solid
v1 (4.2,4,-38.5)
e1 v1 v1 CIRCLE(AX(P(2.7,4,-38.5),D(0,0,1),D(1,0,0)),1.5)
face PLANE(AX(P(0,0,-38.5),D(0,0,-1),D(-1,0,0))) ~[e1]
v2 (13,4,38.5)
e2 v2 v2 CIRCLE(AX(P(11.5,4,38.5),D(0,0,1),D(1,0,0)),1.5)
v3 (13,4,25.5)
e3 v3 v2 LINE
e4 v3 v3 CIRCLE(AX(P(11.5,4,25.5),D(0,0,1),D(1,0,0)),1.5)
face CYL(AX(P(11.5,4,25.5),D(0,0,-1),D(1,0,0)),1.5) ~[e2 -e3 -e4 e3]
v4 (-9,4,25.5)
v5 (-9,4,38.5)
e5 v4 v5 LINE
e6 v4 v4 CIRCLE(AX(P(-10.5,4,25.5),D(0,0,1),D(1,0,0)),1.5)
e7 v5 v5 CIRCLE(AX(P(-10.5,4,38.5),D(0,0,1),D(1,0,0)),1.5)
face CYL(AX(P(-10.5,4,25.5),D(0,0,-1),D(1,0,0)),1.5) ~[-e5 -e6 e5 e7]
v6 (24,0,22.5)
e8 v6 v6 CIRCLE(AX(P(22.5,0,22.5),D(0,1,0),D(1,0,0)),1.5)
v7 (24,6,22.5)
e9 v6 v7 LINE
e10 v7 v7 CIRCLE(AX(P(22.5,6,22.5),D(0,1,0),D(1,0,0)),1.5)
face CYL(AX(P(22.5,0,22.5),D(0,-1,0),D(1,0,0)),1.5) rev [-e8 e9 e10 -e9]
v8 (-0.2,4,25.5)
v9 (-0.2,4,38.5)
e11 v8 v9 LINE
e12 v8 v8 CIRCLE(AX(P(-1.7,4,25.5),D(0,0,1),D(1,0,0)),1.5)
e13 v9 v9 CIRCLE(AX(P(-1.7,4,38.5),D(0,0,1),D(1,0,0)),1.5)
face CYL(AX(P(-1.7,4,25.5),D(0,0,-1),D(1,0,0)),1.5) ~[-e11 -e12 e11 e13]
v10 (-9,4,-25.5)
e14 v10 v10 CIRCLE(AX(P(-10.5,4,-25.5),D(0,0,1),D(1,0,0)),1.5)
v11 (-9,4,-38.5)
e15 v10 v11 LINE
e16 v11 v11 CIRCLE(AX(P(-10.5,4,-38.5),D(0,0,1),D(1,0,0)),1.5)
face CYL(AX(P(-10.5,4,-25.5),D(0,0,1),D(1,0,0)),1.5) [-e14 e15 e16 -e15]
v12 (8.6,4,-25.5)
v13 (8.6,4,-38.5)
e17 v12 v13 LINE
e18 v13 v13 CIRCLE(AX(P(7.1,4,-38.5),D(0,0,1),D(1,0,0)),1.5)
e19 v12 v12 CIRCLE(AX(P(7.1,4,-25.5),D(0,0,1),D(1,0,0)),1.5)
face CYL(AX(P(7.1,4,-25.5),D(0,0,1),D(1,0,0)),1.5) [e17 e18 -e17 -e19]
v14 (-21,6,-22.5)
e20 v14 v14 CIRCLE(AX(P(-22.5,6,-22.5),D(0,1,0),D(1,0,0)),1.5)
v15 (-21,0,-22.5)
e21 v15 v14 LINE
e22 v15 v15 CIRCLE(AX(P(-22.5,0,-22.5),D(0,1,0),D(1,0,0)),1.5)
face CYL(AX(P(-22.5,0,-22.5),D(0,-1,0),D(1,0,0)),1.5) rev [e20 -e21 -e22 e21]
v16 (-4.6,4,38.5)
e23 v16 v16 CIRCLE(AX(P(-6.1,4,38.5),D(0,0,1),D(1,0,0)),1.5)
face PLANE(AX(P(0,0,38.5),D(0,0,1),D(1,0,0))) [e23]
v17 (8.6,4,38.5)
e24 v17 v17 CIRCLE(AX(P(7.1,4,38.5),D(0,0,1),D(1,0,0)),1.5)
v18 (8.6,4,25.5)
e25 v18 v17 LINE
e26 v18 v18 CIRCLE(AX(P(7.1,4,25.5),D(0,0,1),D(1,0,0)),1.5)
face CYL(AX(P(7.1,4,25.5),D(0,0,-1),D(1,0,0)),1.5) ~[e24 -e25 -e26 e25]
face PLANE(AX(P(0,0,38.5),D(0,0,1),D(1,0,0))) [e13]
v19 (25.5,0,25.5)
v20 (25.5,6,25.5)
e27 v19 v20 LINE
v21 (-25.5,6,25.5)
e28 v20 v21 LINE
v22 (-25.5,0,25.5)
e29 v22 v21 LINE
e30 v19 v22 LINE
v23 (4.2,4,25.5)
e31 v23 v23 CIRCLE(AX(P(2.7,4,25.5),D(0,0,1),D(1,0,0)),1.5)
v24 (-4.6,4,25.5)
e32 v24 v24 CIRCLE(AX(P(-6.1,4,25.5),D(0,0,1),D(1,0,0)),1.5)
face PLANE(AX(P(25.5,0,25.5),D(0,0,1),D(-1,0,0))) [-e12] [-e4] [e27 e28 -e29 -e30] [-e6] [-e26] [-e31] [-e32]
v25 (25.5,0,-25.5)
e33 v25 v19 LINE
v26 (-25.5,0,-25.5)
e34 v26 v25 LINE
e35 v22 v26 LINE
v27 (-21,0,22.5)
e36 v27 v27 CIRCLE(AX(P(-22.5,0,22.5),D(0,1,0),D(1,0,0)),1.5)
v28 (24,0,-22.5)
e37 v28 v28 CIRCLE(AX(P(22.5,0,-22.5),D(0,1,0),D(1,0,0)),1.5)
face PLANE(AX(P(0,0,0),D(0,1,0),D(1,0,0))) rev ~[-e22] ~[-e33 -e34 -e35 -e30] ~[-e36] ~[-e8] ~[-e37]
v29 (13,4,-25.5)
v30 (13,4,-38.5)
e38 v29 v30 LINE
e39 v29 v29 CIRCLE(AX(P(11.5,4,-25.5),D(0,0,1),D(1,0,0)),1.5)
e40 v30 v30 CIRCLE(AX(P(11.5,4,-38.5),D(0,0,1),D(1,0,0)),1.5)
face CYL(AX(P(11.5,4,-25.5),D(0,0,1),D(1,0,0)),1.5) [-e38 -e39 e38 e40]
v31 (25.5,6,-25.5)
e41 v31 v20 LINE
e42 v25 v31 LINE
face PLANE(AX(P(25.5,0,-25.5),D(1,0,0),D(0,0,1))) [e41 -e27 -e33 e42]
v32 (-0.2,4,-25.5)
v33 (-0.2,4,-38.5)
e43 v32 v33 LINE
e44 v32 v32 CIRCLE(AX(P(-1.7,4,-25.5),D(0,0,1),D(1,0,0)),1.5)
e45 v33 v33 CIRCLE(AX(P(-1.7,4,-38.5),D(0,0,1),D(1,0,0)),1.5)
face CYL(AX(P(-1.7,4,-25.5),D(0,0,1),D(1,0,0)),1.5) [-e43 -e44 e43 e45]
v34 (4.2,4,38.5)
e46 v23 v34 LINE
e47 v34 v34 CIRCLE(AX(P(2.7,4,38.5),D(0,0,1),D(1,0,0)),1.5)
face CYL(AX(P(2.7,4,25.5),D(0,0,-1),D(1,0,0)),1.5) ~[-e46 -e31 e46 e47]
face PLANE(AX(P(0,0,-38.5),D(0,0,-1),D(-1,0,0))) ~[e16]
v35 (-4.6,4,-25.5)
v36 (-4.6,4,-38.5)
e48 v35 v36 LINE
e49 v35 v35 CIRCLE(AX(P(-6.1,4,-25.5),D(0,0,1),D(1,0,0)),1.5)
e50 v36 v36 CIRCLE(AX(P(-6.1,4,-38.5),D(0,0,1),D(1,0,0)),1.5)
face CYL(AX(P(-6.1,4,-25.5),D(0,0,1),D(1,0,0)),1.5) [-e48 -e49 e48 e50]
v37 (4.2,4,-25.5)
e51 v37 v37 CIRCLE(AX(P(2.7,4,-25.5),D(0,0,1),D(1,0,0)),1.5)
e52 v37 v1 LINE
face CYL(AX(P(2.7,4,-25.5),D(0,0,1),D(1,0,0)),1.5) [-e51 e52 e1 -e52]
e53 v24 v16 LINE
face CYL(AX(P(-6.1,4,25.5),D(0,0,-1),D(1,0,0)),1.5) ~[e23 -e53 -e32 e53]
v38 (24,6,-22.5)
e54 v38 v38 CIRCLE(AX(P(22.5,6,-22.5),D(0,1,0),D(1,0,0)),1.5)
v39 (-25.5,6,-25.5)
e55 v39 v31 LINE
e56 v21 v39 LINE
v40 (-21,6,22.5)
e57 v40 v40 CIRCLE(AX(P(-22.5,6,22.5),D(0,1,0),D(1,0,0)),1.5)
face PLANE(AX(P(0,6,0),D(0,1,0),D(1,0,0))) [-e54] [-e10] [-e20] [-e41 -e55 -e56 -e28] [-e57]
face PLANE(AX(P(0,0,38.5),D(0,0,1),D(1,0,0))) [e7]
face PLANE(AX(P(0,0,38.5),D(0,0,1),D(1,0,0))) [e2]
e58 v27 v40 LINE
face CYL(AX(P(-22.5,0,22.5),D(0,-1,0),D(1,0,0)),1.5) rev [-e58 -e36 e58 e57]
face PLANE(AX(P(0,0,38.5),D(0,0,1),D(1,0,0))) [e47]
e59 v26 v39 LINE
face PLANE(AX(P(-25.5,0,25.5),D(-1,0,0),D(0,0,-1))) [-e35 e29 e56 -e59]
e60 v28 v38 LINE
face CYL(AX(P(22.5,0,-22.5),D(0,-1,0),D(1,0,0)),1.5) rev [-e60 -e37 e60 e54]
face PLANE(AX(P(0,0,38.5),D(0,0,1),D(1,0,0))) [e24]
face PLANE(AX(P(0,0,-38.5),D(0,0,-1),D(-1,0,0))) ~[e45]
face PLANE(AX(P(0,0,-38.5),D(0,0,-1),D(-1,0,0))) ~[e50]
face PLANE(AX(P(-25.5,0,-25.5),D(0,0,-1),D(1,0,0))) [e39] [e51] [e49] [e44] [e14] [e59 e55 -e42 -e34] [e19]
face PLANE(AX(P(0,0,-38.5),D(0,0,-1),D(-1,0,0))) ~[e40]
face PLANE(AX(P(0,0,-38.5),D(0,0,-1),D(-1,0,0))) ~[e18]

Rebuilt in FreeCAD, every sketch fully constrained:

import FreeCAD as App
import Part
import Sketcher

doc = App.newDocument("Part")
body = doc.addObject("PartDesign::Body", "Body")

sketch1 = body.newObject("Sketcher::SketchObject", "Sketch")
sketch1.AttachmentSupport = (doc.getObject("XZ_Plane"), [""])
sketch1.MapMode = "FlatFace"
sketch1.addGeometry(Part.LineSegment(App.Vector(-25.5, 25.5, 0), App.Vector(25.5, 25.5, 0)), False)
sketch1.addGeometry(Part.LineSegment(App.Vector(25.5, 25.5, 0), App.Vector(25.5, -25.5, 0)), False)
sketch1.addGeometry(Part.LineSegment(App.Vector(25.5, -25.5, 0), App.Vector(-25.5, -25.5, 0)), False)
sketch1.addGeometry(Part.LineSegment(App.Vector(-25.5, -25.5, 0), App.Vector(-25.5, 25.5, 0)), False)
sketch1.addGeometry(Part.Circle(App.Vector(-22.5, 22.5, 0), App.Vector(0, 0, 1), 1.5), False)
sketch1.addGeometry(Part.Circle(App.Vector(22.5, 22.5, 0), App.Vector(0, 0, 1), 1.5), False)
sketch1.addGeometry(Part.Circle(App.Vector(-22.5, -22.5, 0), App.Vector(0, 0, 1), 1.5), False)
sketch1.addGeometry(Part.Circle(App.Vector(22.5, -22.5, 0), App.Vector(0, 0, 1), 1.5), False)
sketch1.addConstraint(Sketcher.Constraint("Coincident", 0, 2, 1, 1))
sketch1.addConstraint(Sketcher.Constraint("Coincident", 1, 2, 2, 1))
sketch1.addConstraint(Sketcher.Constraint("Coincident", 2, 2, 3, 1))
sketch1.addConstraint(Sketcher.Constraint("Coincident", 3, 2, 0, 1))
sketch1.addConstraint(Sketcher.Constraint("Horizontal", 0))
sketch1.addConstraint(Sketcher.Constraint("Vertical", 1))
sketch1.addConstraint(Sketcher.Constraint("Horizontal", 2))
sketch1.addConstraint(Sketcher.Constraint("Vertical", 3))
sketch1.addConstraint(Sketcher.Constraint("Equal", 4, 5))
sketch1.addConstraint(Sketcher.Constraint("Equal", 5, 6))
sketch1.addConstraint(Sketcher.Constraint("Equal", 6, 7))
sketch1.addConstraint(Sketcher.Constraint("Symmetric", 5, 3, 6, 3, -1, 1))
sketch1.addConstraint(Sketcher.Constraint("Symmetric", 4, 3, 7, 3, -1, 1))
sketch1.addConstraint(Sketcher.Constraint("Symmetric", 0, 2, 2, 2, -1, 1))
sketch1.addConstraint(Sketcher.Constraint("Symmetric", 4, 3, 5, 3, -2))
sketch1.addConstraint(Sketcher.Constraint("Equal", 2, 1))
sketch1.addConstraint(Sketcher.Constraint("Diameter", 4, 3.0))
sketch1.addConstraint(Sketcher.Constraint("DistanceX", 0, 1, 0, 2, 51.0))
sketch1.addConstraint(Sketcher.Constraint("DistanceX", 4, 3, 5, 3, 45.0))
sketch1.addConstraint(Sketcher.Constraint("DistanceY", 6, 3, 4, 3, 45.0))
pad1 = body.newObject("PartDesign::Pad", "Pad")
pad1.Profile = sketch1
pad1.Length = 6
pad1.Reversed = True

sketch2 = body.newObject("Sketcher::SketchObject", "Sketch001")
sketch2.AttachmentSupport = (doc.getObject("XY_Plane"), [""])
sketch2.MapMode = "FlatFace"
sketch2.AttachmentOffset = App.Placement(App.Vector(0, 0, 25.5), App.Rotation())
sketch2.addGeometry(Part.Circle(App.Vector(-10.5, 4, 0), App.Vector(0, 0, 1), 1.5), False)
sketch2.addGeometry(Part.Circle(App.Vector(-6.1, 4, 0), App.Vector(0, 0, 1), 1.5), False)
sketch2.addGeometry(Part.Circle(App.Vector(-1.7, 4, 0), App.Vector(0, 0, 1), 1.5), False)
sketch2.addGeometry(Part.Circle(App.Vector(2.7, 4, 0), App.Vector(0, 0, 1), 1.5), False)
sketch2.addGeometry(Part.Circle(App.Vector(7.1, 4, 0), App.Vector(0, 0, 1), 1.5), False)
sketch2.addGeometry(Part.Circle(App.Vector(11.5, 4, 0), App.Vector(0, 0, 1), 1.5), False)
sketch2.addConstraint(Sketcher.Constraint("Equal", 0, 1))
sketch2.addConstraint(Sketcher.Constraint("Equal", 1, 2))
sketch2.addConstraint(Sketcher.Constraint("Equal", 2, 3))
sketch2.addConstraint(Sketcher.Constraint("Equal", 3, 4))
sketch2.addConstraint(Sketcher.Constraint("Equal", 4, 5))
sketch2.addConstraint(Sketcher.Constraint("Horizontal", 0, 3, 1, 3))
sketch2.addConstraint(Sketcher.Constraint("Horizontal", 1, 3, 2, 3))
sketch2.addConstraint(Sketcher.Constraint("Horizontal", 2, 3, 3, 3))
sketch2.addConstraint(Sketcher.Constraint("Horizontal", 3, 3, 4, 3))
sketch2.addConstraint(Sketcher.Constraint("Horizontal", 4, 3, 5, 3))
sketch2.addConstraint(Sketcher.Constraint("Diameter", 0, 3.0))
sketch2.addConstraint(Sketcher.Constraint("DistanceX", 0, 3, 5, 3, 22.0))
sketch2.addConstraint(Sketcher.Constraint("DistanceY", -1, 1, 0, 3, 4.0))
sketch2.addConstraint(Sketcher.Constraint("DistanceX", 0, 3, -1, 1, 10.5))
sketch2.addConstraint(Sketcher.Constraint("DistanceX", 1, 3, -1, 1, 6.1))
sketch2.addConstraint(Sketcher.Constraint("DistanceX", 2, 3, -1, 1, 1.7))
sketch2.addConstraint(Sketcher.Constraint("DistanceX", -1, 1, 3, 3, 2.7))
sketch2.addConstraint(Sketcher.Constraint("DistanceX", -1, 1, 4, 3, 7.1))
pad2 = body.newObject("PartDesign::Pad", "Pad001")
pad2.Profile = sketch2
pad2.Length = 13
doc.recompute()

mirrored = body.newObject("PartDesign::Mirrored", "Mirrored")
mirrored.Originals = [pad2]
mirrored.MirrorPlane = (doc.getObject("XY_Plane"), [""])
body.Tip = mirrored

doc.recompute()
